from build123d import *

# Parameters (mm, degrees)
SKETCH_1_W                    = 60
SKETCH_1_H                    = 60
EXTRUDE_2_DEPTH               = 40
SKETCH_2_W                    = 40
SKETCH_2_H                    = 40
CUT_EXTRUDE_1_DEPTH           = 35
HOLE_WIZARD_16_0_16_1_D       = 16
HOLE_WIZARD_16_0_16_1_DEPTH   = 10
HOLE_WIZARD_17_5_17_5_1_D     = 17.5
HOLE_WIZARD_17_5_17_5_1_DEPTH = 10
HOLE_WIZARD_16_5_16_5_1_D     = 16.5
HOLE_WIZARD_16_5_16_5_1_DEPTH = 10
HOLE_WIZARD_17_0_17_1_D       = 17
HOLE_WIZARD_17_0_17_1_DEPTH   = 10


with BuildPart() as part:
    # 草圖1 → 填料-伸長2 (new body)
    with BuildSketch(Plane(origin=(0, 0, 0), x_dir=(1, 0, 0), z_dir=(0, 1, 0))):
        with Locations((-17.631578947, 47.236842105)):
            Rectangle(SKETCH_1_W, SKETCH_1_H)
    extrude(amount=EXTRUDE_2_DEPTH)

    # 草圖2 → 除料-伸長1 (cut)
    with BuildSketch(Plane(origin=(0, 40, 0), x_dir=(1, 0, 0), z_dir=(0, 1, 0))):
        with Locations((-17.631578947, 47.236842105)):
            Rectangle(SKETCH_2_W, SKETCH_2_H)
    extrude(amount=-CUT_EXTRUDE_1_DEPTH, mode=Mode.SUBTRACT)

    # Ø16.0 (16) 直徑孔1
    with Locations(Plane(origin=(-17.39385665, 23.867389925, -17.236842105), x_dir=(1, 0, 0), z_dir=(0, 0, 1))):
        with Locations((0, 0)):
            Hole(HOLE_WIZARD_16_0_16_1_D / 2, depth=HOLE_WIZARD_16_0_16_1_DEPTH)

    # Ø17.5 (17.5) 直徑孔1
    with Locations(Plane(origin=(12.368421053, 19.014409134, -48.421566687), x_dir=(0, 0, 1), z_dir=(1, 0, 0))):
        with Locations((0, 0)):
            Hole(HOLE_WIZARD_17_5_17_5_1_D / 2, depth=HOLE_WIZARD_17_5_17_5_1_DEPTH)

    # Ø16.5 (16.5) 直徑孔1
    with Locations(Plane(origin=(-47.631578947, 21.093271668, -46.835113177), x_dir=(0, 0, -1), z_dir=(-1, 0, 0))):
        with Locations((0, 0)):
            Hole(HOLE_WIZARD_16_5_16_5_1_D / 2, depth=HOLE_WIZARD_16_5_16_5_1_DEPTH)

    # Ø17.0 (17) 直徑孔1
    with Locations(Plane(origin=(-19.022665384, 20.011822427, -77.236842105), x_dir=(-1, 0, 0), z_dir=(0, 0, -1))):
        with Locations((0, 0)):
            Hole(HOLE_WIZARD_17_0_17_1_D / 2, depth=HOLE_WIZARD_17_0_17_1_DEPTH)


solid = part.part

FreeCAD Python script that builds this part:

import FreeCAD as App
import Part
import Sketcher

V = App.Vector
Q = App.Units.Quantity


def add_polygon(sketch, points):
    """Adds a closed chain of lines whose ends are joined by coincident constraints."""
    first, n = sketch.GeometryCount, len(points)
    for a, b in zip(points, points[1:] + points[:1]):
        sketch.addGeometry(Part.LineSegment(App.Vector(*a, 0), App.Vector(*b, 0)), False)
    for i in range(n):
        sketch.addConstraint(Sketcher.Constraint("Coincident", first + i, 2, first + (i + 1) % n, 1))

doc = App.newDocument("Part")
params = doc.addObject("Spreadsheet::Sheet", "Params")
for row, (alias, value) in enumerate([
    ("sketch1_width", "60 mm"),
    ("pad1_length", "40 mm"),
    ("sketch2_width", "40 mm"),
    ("pocket1_length", "35 mm"),
    ("sketch3_diameter", "16 mm"),
    ("hole_diameter", "16 mm"),
    ("hole_depth", "10 mm"),
    ("sketch4_diameter", "17.5 mm"),
    ("hole2_diameter", "17.5 mm"),
    ("hole2_depth", "10 mm"),
    ("sketch5_diameter", "16.5 mm"),
    ("hole3_diameter", "16.5 mm"),
    ("hole3_depth", "10 mm"),
    ("sketch6_diameter", "17 mm"),
    ("hole4_diameter", "17 mm"),
    ("hole4_depth", "10 mm"),
], start=1):
    params.set(f"A{row}", alias)
    params.set(f"B{row}", "=" + value)
    params.setAlias(f"B{row}", alias)

body = doc.addObject("PartDesign::Body", "Body")

# Sketch on XZ plane
sketch1 = body.newObject("Sketcher::SketchObject", "Sketch")
sketch1.AttachmentSupport = (doc.getObject("XZ_Plane"), [""])
sketch1.MapMode = "FlatFace"
add_polygon(sketch1, [(-48, -77), (-48, -17), (12, -17), (12, -77)])  # lines 0-3
sketch1.addConstraint([
    Sketcher.Constraint("Vertical", 0),
    Sketcher.Constraint("Horizontal", 1),
    Sketcher.Constraint("Vertical", 2),
    Sketcher.Constraint("Horizontal", 3),
    Sketcher.Constraint("Equal", 3, 0),
    Sketcher.Constraint("DistanceX", 1, 1, 1, 2, Q("60 mm")),
    Sketcher.Constraint("DistanceX", 0, 2, -1, 1, Q("47.631579 mm")),
    Sketcher.Constraint("DistanceY", 0, 2, -1, 1, Q("17.236842 mm")),
])
sketch1.setExpression("Constraints[9]", "Params.sketch1_width")
pad1 = body.newObject("PartDesign::Pad", "Pad")
pad1.Profile = sketch1
pad1.setExpression("Length", "Params.pad1_length")
pad1.Reversed = True

# Sketch on XZ plane
sketch2 = body.newObject("Sketcher::SketchObject", "Sketch001")
sketch2.AttachmentSupport = (doc.getObject("XZ_Plane"), [""])
sketch2.MapMode = "FlatFace"
sketch2.AttachmentOffset = App.Placement(V(0, 0, -40), App.Rotation())
add_polygon(sketch2, [(-38, -67), (-38, -27), (2, -27), (2, -67)])  # lines 0-3
sketch2.addConstraint([
    Sketcher.Constraint("Vertical", 0),
    Sketcher.Constraint("Horizontal", 1),
    Sketcher.Constraint("Vertical", 2),
    Sketcher.Constraint("Horizontal", 3),
    Sketcher.Constraint("Equal", 3, 0),
    Sketcher.Constraint("DistanceX", 1, 1, 1, 2, Q("40 mm")),
    Sketcher.Constraint("DistanceX", 0, 2, -1, 1, Q("37.631579 mm")),
    Sketcher.Constraint("DistanceY", 0, 2, -1, 1, Q("27.236842 mm")),
])
sketch2.setExpression("Constraints[9]", "Params.sketch2_width")
pocket1 = body.newObject("PartDesign::Pocket", "Pocket")
pocket1.Profile = sketch2
pocket1.setExpression("Length", "Params.pocket1_length")
pocket1.Reversed = True

# Sketch on XY plane
sketch3 = body.newObject("Sketcher::SketchObject", "Sketch002")
sketch3.AttachmentSupport = (doc.getObject("XY_Plane"), [""])
sketch3.MapMode = "FlatFace"
sketch3.AttachmentOffset = App.Placement(V(0, 0, -17.236842), App.Rotation())
sketch3.addGeometry(Part.Circle(V(-17, 24, 0), V(0, 0, 1), 8), False)
sketch3.addConstraint([
    Sketcher.Constraint("Diameter", 0, Q("16 mm")),
    Sketcher.Constraint("DistanceY", -1, 1, 0, 3, Q("23.86739 mm")),
    Sketcher.Constraint("DistanceX", 0, 3, -1, 1, Q("17.393857 mm")),
])
sketch3.setExpression("Constraints[0]", "Params.sketch3_diameter")
doc.recompute()
hole = body.newObject("PartDesign::Hole", "Hole")
hole.Profile = sketch3
hole.ThreadType = "None"
hole.setExpression("Diameter", "Params.hole_diameter")
hole.DepthType = "Dimension"
hole.setExpression("Depth", "Params.hole_depth")
hole.DrillPoint = "Flat"

# Sketch on YZ plane
sketch4 = body.newObject("Sketcher::SketchObject", "Sketch003")
sketch4.AttachmentSupport = (doc.getObject("YZ_Plane"), [""])
sketch4.MapMode = "FlatFace"
sketch4.AttachmentOffset = App.Placement(V(0, 0, 12.368421), App.Rotation())
sketch4.addGeometry(Part.Circle(V(19, -48, 0), V(0, 0, 1), 9), False)
sketch4.addConstraint([
    Sketcher.Constraint("Diameter", 0, Q("17.5 mm")),
    Sketcher.Constraint("DistanceX", -1, 1, 0, 3, Q("19.014409 mm")),
    Sketcher.Constraint("DistanceY", 0, 3, -1, 1, Q("48.421567 mm")),
])
sketch4.setExpression("Constraints[0]", "Params.sketch4_diameter")
doc.recompute()
hole2 = body.newObject("PartDesign::Hole", "Hole001")
hole2.Profile = sketch4
hole2.ThreadType = "None"
hole2.setExpression("Diameter", "Params.hole2_diameter")
hole2.DepthType = "Dimension"
hole2.setExpression("Depth", "Params.hole2_depth")
hole2.DrillPoint = "Flat"

# Sketch on YZ plane
sketch5 = body.newObject("Sketcher::SketchObject", "Sketch004")
sketch5.AttachmentSupport = (doc.getObject("YZ_Plane"), [""])
sketch5.MapMode = "FlatFace"
sketch5.AttachmentOffset = App.Placement(V(0, 0, -47.631579), App.Rotation())
sketch5.addGeometry(Part.Circle(V(21, -47, 0), V(0, 0, 1), 8), False)
sketch5.addConstraint([
    Sketcher.Constraint("Diameter", 0, Q("16.5 mm")),
    Sketcher.Constraint("DistanceX", -1, 1, 0, 3, Q("21.093272 mm")),
    Sketcher.Constraint("DistanceY", 0, 3, -1, 1, Q("46.835113 mm")),
])
sketch5.setExpression("Constraints[0]", "Params.sketch5_diameter")
doc.recompute()
hole3 = body.newObject("PartDesign::Hole", "Hole002")
hole3.Profile = sketch5
hole3.ThreadType = "None"
hole3.setExpression("Diameter", "Params.hole3_diameter")
hole3.DepthType = "Dimension"
hole3.setExpression("Depth", "Params.hole3_depth")
hole3.DrillPoint = "Flat"
hole3.Reversed = True

# Sketch on XY plane
sketch6 = body.newObject("Sketcher::SketchObject", "Sketch005")
sketch6.AttachmentSupport = (doc.getObject("XY_Plane"), [""])
sketch6.MapMode = "FlatFace"
sketch6.AttachmentOffset = App.Placement(V(0, 0, -77.236842), App.Rotation())
sketch6.addGeometry(Part.Circle(V(-19, 20, 0), V(0, 0, 1), 8), False)
sketch6.addConstraint([
    Sketcher.Constraint("Diameter", 0, Q("17 mm")),
    Sketcher.Constraint("DistanceX", 0, 3, -1, 1, Q("19.022665 mm")),
    Sketcher.Constraint("DistanceY", -1, 1, 0, 3, Q("20.011822 mm")),
])
sketch6.setExpression("Constraints[0]", "Params.sketch6_diameter")
doc.recompute()
hole4 = body.newObject("PartDesign::Hole", "Hole003")
hole4.Profile = sketch6
hole4.ThreadType = "None"
hole4.setExpression("Diameter", "Params.hole4_diameter")
hole4.DepthType = "Dimension"
hole4.setExpression("Depth", "Params.hole4_depth")
hole4.DrillPoint = "Flat"
hole4.Reversed = True

doc.recompute()
